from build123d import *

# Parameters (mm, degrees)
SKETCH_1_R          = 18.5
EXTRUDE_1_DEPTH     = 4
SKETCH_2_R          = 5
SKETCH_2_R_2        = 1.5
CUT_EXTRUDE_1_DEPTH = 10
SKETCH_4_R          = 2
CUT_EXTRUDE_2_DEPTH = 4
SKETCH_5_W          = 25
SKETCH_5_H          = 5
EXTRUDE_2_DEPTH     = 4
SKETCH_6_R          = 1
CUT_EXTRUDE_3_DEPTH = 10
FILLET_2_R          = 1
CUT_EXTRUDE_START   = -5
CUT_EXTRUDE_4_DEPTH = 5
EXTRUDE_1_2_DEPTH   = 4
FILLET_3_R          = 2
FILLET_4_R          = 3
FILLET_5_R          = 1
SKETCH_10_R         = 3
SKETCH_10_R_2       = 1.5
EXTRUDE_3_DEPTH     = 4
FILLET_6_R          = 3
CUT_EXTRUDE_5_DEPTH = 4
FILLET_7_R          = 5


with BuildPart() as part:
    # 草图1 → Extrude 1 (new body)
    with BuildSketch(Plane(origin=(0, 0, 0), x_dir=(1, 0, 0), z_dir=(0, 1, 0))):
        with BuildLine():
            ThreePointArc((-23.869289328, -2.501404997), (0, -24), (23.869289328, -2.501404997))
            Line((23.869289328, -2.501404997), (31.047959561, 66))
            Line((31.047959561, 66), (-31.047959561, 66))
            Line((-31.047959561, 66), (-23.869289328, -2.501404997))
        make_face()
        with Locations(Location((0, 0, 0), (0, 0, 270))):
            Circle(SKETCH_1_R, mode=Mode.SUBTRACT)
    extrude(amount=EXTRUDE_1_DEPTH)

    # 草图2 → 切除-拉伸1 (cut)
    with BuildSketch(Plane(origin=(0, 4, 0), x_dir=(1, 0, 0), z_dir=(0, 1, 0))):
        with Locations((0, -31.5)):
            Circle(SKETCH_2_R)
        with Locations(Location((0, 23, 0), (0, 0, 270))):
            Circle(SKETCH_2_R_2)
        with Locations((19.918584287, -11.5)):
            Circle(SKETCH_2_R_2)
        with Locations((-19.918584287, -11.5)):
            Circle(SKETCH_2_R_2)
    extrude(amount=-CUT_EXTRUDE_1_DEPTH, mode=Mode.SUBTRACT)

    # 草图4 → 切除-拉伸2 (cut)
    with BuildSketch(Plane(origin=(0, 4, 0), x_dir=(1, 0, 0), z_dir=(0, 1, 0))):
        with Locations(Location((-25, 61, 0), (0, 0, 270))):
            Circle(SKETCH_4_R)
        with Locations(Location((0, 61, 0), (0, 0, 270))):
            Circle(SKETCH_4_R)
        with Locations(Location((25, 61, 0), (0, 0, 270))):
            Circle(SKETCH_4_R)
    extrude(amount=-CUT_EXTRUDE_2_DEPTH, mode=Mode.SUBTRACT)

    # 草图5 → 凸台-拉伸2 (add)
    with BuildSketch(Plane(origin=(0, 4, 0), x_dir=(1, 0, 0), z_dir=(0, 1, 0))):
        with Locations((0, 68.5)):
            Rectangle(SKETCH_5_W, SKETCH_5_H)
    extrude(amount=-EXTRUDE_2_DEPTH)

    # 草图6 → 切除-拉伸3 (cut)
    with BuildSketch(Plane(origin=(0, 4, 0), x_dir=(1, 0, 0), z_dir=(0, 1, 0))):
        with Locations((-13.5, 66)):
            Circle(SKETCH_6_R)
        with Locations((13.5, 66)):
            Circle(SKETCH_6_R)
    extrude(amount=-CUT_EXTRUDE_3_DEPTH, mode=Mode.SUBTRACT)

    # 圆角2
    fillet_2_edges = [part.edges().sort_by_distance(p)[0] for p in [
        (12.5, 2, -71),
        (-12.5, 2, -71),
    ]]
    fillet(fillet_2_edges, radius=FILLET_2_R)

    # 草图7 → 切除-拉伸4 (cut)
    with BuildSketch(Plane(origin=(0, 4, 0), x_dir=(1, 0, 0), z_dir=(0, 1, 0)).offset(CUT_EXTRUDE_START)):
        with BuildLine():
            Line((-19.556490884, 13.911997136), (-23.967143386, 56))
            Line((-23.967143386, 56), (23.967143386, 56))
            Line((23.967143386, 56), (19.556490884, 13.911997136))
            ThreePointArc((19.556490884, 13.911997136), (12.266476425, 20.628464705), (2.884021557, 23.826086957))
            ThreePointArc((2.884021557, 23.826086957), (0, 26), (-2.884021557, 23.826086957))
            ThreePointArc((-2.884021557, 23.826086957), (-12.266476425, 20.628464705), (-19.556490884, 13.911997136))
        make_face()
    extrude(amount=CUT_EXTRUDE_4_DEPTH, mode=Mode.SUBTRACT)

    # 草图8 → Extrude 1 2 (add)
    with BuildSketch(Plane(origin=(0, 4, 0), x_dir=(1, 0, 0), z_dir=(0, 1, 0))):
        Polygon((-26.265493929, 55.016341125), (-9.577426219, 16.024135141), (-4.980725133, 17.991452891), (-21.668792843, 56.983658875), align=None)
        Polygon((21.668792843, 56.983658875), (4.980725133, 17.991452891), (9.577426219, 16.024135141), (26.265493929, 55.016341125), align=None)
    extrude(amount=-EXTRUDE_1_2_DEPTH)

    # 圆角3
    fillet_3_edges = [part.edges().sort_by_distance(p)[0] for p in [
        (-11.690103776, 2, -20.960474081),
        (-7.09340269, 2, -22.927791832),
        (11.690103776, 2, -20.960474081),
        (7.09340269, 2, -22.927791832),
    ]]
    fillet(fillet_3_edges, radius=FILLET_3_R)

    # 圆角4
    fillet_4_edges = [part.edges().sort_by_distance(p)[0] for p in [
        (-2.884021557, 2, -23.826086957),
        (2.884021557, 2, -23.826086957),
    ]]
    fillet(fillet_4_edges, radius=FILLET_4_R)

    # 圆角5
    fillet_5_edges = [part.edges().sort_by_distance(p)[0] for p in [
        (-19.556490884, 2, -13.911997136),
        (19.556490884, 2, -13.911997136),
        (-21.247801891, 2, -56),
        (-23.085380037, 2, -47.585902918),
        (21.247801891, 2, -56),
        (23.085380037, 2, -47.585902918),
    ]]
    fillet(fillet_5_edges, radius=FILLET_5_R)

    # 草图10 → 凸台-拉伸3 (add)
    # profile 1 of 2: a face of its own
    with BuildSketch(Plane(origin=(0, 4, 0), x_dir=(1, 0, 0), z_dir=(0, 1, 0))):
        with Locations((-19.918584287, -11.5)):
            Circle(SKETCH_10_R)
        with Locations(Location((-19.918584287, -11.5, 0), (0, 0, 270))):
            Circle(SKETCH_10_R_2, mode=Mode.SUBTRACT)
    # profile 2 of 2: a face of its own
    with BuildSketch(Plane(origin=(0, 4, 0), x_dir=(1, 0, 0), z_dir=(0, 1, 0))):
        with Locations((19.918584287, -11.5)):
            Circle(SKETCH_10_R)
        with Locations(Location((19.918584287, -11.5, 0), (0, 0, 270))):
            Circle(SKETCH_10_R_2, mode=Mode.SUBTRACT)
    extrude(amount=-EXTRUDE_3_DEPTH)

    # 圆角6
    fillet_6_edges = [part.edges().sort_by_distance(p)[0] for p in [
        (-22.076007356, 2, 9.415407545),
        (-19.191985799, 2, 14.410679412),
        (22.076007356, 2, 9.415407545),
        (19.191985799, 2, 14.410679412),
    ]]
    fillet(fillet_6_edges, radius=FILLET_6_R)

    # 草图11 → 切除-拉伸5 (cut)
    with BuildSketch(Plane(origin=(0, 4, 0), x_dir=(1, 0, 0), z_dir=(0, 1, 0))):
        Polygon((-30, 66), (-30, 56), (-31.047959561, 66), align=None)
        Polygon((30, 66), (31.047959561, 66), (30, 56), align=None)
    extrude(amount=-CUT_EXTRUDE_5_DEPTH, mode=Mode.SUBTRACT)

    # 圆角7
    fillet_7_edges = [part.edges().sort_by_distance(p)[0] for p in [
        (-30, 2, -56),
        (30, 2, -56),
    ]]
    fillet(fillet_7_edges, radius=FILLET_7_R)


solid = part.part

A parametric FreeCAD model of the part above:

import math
import FreeCAD as App
import Part
import Sketcher
from FreeCAD import Vector
Q = App.Units.Quantity


def edges_at(feature, points):
    """Names of the edges that pass closest to the given points."""
    edges = feature.Shape.Edges
    near = lambda p: min(range(len(edges)), key=lambda i: edges[i].distToShape(Part.Vertex(*p))[0])
    return sorted({f"Edge{near(p) + 1}" for p in points})

doc = App.newDocument("Part")
body = doc.addObject("PartDesign::Body", "Body")

sketch1 = body.newObject("Sketcher::SketchObject", "Sketch")
sketch1.AttachmentSupport = (doc.getObject("XZ_Plane"), [""])
sketch1.MapMode = "FlatFace"
sketch1.addGeometry(Part.ArcOfCircle(Part.Circle(Vector(0, 0, 0), Vector(0, 0, 1), 24), math.radians(6), math.radians(174)), False)
sketch1.addGeometry(Part.LineSegment(Vector(24, 3, 0), Vector(31, -66, 0)), False)
sketch1.addGeometry(Part.LineSegment(Vector(31, -66, 0), Vector(-31, -66, 0)), False)
sketch1.addGeometry(Part.LineSegment(Vector(-31, -66, 0), Vector(-24, 3, 0)), False)
sketch1.addGeometry(Part.Circle(Vector(0, 0, 0), Vector(0, 0, 1), 18), False)
sketch1.addConstraint(Sketcher.Constraint("Tangent", 0, 1, 1, 1))
sketch1.addConstraint(Sketcher.Constraint("Coincident", 1, 2, 2, 1))
sketch1.addConstraint(Sketcher.Constraint("Coincident", 2, 2, 3, 1))
sketch1.addConstraint(Sketcher.Constraint("Tangent", 3, 2, 0, 2))
sketch1.addConstraint(Sketcher.Constraint("Horizontal", 2))
sketch1.addConstraint(Sketcher.Constraint("Coincident", 0, 3, -1, 1))
sketch1.addConstraint(Sketcher.Constraint("Coincident", 4, 3, -1, 1))
sketch1.addConstraint(Sketcher.Constraint("Horizontal", 0, 1, 3, 2))
sketch1.addConstraint(Sketcher.Constraint("Diameter", 4, Q("37 mm")))
sketch1.addConstraint(Sketcher.Constraint("Radius", 0, Q("24 mm")))
sketch1.addConstraint(Sketcher.Constraint("DistanceY", 1, 2, -1, 1, Q("66 mm")))
sketch1.addConstraint(Sketcher.Constraint("DistanceX", 2, 2, 2, 1, Q("62.095919 mm")))
pad1 = body.newObject("PartDesign::Pad", "Pad")
pad1.Profile = sketch1
pad1.Length = 4
pad1.Reversed = True

sketch2 = body.newObject("Sketcher::SketchObject", "Sketch001")
sketch2.AttachmentSupport = (doc.getObject("XZ_Plane"), [""])
sketch2.MapMode = "FlatFace"
sketch2.AttachmentOffset = App.Placement(Vector(0, 0, -4), App.Rotation())
sketch2.addGeometry(Part.Circle(Vector(0, 31.5, 0), Vector(0, 0, 1), 5), False)
sketch2.addGeometry(Part.Circle(Vector(0, -23, 0), Vector(0, 0, 1), 1.5), False)
sketch2.addGeometry(Part.Circle(Vector(19.9, 11.5, 0), Vector(0, 0, 1), 1.5), False)
sketch2.addGeometry(Part.Circle(Vector(-19.9, 11.5, 0), Vector(0, 0, 1), 1.5), False)
sketch2.addConstraint(Sketcher.Constraint("Equal", 1, 2))
sketch2.addConstraint(Sketcher.Constraint("Equal", 2, 3))
sketch2.addConstraint(Sketcher.Constraint("Symmetric", 2, 3, 3, 3, -2))
sketch2.addConstraint(Sketcher.Constraint("PointOnObject", 0, 3, -2))
sketch2.addConstraint(Sketcher.Constraint("PointOnObject", 1, 3, -2))
sketch2.addConstraint(Sketcher.Constraint("Diameter", 0, Q("10 mm")))
sketch2.addConstraint(Sketcher.Constraint("Diameter", 1, Q("3 mm")))
sketch2.addConstraint(Sketcher.Constraint("DistanceY", 1, 3, -1, 1, Q("23 mm")))
sketch2.addConstraint(Sketcher.Constraint("DistanceY", 2, 3, 0, 3, Q("20 mm")))
sketch2.addConstraint(Sketcher.Constraint("DistanceY", -1, 1, 0, 3, Q("31.5 mm")))
sketch2.addConstraint(Sketcher.Constraint("DistanceX", 3, 3, 2, 3, Q("39.837169 mm")))
pocket1 = body.newObject("PartDesign::Pocket", "Pocket")
pocket1.Profile = sketch2
pocket1.Length = 10
pocket1.Reversed = True

sketch3 = body.newObject("Sketcher::SketchObject", "Sketch002")
sketch3.AttachmentSupport = (doc.getObject("XZ_Plane"), [""])
sketch3.MapMode = "FlatFace"
sketch3.AttachmentOffset = App.Placement(Vector(0, 0, -4), App.Rotation())
sketch3.addGeometry(Part.Circle(Vector(-25, -61, 0), Vector(0, 0, 1), 2), False)
sketch3.addGeometry(Part.Circle(Vector(0, -61, 0), Vector(0, 0, 1), 2), False)
sketch3.addGeometry(Part.Circle(Vector(25, -61, 0), Vector(0, 0, 1), 2), False)
sketch3.addConstraint(Sketcher.Constraint("Equal", 0, 1))
sketch3.addConstraint(Sketcher.Constraint("Equal", 1, 2))
sketch3.addConstraint(Sketcher.Constraint("Symmetric", 0, 3, 2, 3, -2))
sketch3.addConstraint(Sketcher.Constraint("PointOnObject", 1, 3, -2))
sketch3.addConstraint(Sketcher.Constraint("Horizontal", 0, 3, 1, 3))
sketch3.addConstraint(Sketcher.Constraint("Diameter", 0, Q("4 mm")))
sketch3.addConstraint(Sketcher.Constraint("DistanceX", 0, 3, -1, 1, Q("25 mm")))
sketch3.addConstraint(Sketcher.Constraint("DistanceY", 0, 3, -1, 1, Q("61 mm")))
pocket2 = body.newObject("PartDesign::Pocket", "Pocket001")
pocket2.Profile = sketch3
pocket2.Length = 4
pocket2.Reversed = True

sketch4 = body.newObject("Sketcher::SketchObject", "Sketch003")
sketch4.AttachmentSupport = (doc.getObject("XZ_Plane"), [""])
sketch4.MapMode = "FlatFace"
sketch4.AttachmentOffset = App.Placement(Vector(0, 0, -4), App.Rotation())
sketch4.addGeometry(Part.LineSegment(Vector(-12, -71, 0), Vector(-12, -66, 0)), False)
sketch4.addGeometry(Part.LineSegment(Vector(-12, -66, 0), Vector(12, -66, 0)), False)
sketch4.addGeometry(Part.LineSegment(Vector(12, -66, 0), Vector(12, -71, 0)), False)
sketch4.addGeometry(Part.LineSegment(Vector(12, -71, 0), Vector(-12, -71, 0)), False)
sketch4.addConstraint(Sketcher.Constraint("Coincident", 0, 2, 1, 1))
sketch4.addConstraint(Sketcher.Constraint("Coincident", 1, 2, 2, 1))
sketch4.addConstraint(Sketcher.Constraint("Coincident", 2, 2, 3, 1))
sketch4.addConstraint(Sketcher.Constraint("Coincident", 3, 2, 0, 1))
sketch4.addConstraint(Sketcher.Constraint("Vertical", 0))
sketch4.addConstraint(Sketcher.Constraint("Horizontal", 1))
sketch4.addConstraint(Sketcher.Constraint("Vertical", 2))
sketch4.addConstraint(Sketcher.Constraint("Horizontal", 3))
sketch4.addConstraint(Sketcher.Constraint("DistanceX", 1, 1, 1, 2, Q("25 mm")))
sketch4.addConstraint(Sketcher.Constraint("DistanceY", 0, 1, 0, 2, Q("5 mm")))
sketch4.addConstraint(Sketcher.Constraint("DistanceY", 0, 2, -1, 1, Q("66 mm")))
sketch4.addConstraint(Sketcher.Constraint("DistanceX", 0, 2, -1, 1, Q("12.5 mm")))
pad2 = body.newObject("PartDesign::Pad", "Pad001")
pad2.Profile = sketch4
pad2.Length = 4

sketch5 = body.newObject("Sketcher::SketchObject", "Sketch004")
sketch5.AttachmentSupport = (doc.getObject("XZ_Plane"), [""])
sketch5.MapMode = "FlatFace"
sketch5.AttachmentOffset = App.Placement(Vector(0, 0, -4), App.Rotation())
sketch5.addGeometry(Part.Circle(Vector(-13.5, -66, 0), Vector(0, 0, 1), 1), False)
sketch5.addGeometry(Part.Circle(Vector(13.5, -66, 0), Vector(0, 0, 1), 1), False)
sketch5.addConstraint(Sketcher.Constraint("Equal", 0, 1))
sketch5.addConstraint(Sketcher.Constraint("Symmetric", 0, 3, 1, 3, -2))
sketch5.addConstraint(Sketcher.Constraint("Diameter", 0, Q("2 mm")))
sketch5.addConstraint(Sketcher.Constraint("DistanceY", 0, 3, -1, 1, Q("66 mm")))
sketch5.addConstraint(Sketcher.Constraint("DistanceX", 0, 3, 1, 3, Q("27 mm")))
pocket3 = body.newObject("PartDesign::Pocket", "Pocket002")
pocket3.Profile = sketch5
pocket3.Length = 10
pocket3.Reversed = True
doc.recompute()

fillet = body.newObject("PartDesign::Fillet", "Fillet")
fillet.Base = (pocket3, edges_at(pocket3, [(12.5, 2, -71), (-12.5, 2, -71)]))
fillet.Radius = 1

sketch6 = body.newObject("Sketcher::SketchObject", "Sketch005")
sketch6.AttachmentSupport = (doc.getObject("XZ_Plane"), [""])
sketch6.MapMode = "FlatFace"
sketch6.AttachmentOffset = App.Placement(Vector(0, 0, 1), App.Rotation())
sketch6.addGeometry(Part.LineSegment(Vector(-24, -56, 0), Vector(-19.6, -13.9, 0)), False)
sketch6.addGeometry(Part.ArcOfCircle(Part.Circle(Vector(0, 0, 0), Vector(0, 0, 1), 24), math.radians(-145), math.radians(-97)), False)
sketch6.addGeometry(Part.ArcOfCircle(Part.Circle(Vector(0, -23, 0), Vector(0, 0, 1), 3), math.radians(-164), math.radians(-16)), False)
sketch6.addGeometry(Part.ArcOfCircle(Part.Circle(Vector(0, 0, 0), Vector(0, 0, 1), 24), math.radians(-83), math.radians(-35)), False)
sketch6.addGeometry(Part.LineSegment(Vector(19.6, -13.9, 0), Vector(24, -56, 0)), False)
sketch6.addGeometry(Part.LineSegment(Vector(24, -56, 0), Vector(-24, -56, 0)), False)
sketch6.addConstraint(Sketcher.Constraint("Coincident", 0, 2, 1, 1))
sketch6.addConstraint(Sketcher.Constraint("Coincident", 1, 2, 2, 1))
sketch6.addConstraint(Sketcher.Constraint("Coincident", 2, 2, 3, 1))
sketch6.addConstraint(Sketcher.Constraint("Coincident", 3, 2, 4, 1))
sketch6.addConstraint(Sketcher.Constraint("Coincident", 4, 2, 5, 1))
sketch6.addConstraint(Sketcher.Constraint("Coincident", 5, 2, 0, 1))
sketch6.addConstraint(Sketcher.Constraint("Horizontal", 5))
sketch6.addConstraint(Sketcher.Constraint("Coincident", 1, 3, -1, 1))
sketch6.addConstraint(Sketcher.Constraint("Coincident", 3, 3, -1, 1))
sketch6.addConstraint(Sketcher.Constraint("Equal", 1, 3))
sketch6.addConstraint(Sketcher.Constraint("PointOnObject", 2, 3, -2))
sketch6.addConstraint(Sketcher.Constraint("Horizontal", 0, 2, 3, 2))
sketch6.addConstraint(Sketcher.Constraint("Equal", 0, 4))
sketch6.addConstraint(Sketcher.Constraint("Radius", 1, Q("24 mm")))
sketch6.addConstraint(Sketcher.Constraint("Radius", 2, Q("3 mm")))
sketch6.addConstraint(Sketcher.Constraint("DistanceY", 2, 3, -1, 1, Q("23 mm")))
sketch6.addConstraint(Sketcher.Constraint("DistanceY", 4, 2, -1, 1, Q("56 mm")))
sketch6.addConstraint(Sketcher.Constraint("Distance", 0, Q("42.318481 mm")))
sketch6.addConstraint(Sketcher.Constraint("DistanceX", 5, 2, 5, 1, Q("47.934287 mm")))
pocket4 = body.newObject("PartDesign::Pocket", "Pocket003")
pocket4.Profile = sketch6
pocket4.Length = 5

sketch7 = body.newObject("Sketcher::SketchObject", "Sketch006")
sketch7.AttachmentSupport = (doc.getObject("XZ_Plane"), [""])
sketch7.MapMode = "FlatFace"
sketch7.AttachmentOffset = App.Placement(Vector(0, 0, -4), App.Rotation())
sketch7.addGeometry(Part.LineSegment(Vector(-26, -55, 0), Vector(-10, -16, 0)), False)
sketch7.addGeometry(Part.LineSegment(Vector(-10, -16, 0), Vector(-5, -18, 0)), False)
sketch7.addGeometry(Part.LineSegment(Vector(-5, -18, 0), Vector(-22, -57, 0)), False)
sketch7.addGeometry(Part.LineSegment(Vector(-22, -57, 0), Vector(-26, -55, 0)), False)
sketch7.addGeometry(Part.LineSegment(Vector(22, -57, 0), Vector(5, -18, 0)), False)
sketch7.addGeometry(Part.LineSegment(Vector(5, -18, 0), Vector(10, -16, 0)), False)
sketch7.addGeometry(Part.LineSegment(Vector(10, -16, 0), Vector(26, -55, 0)), False)
sketch7.addGeometry(Part.LineSegment(Vector(26, -55, 0), Vector(22, -57, 0)), False)
sketch7.addConstraint(Sketcher.Constraint("Coincident", 0, 2, 1, 1))
sketch7.addConstraint(Sketcher.Constraint("Coincident", 1, 2, 2, 1))
sketch7.addConstraint(Sketcher.Constraint("Coincident", 2, 2, 3, 1))
sketch7.addConstraint(Sketcher.Constraint("Coincident", 3, 2, 0, 1))
sketch7.addConstraint(Sketcher.Constraint("Coincident", 4, 2, 5, 1))
sketch7.addConstraint(Sketcher.Constraint("Coincident", 5, 2, 6, 1))
sketch7.addConstraint(Sketcher.Constraint("Coincident", 6, 2, 7, 1))
sketch7.addConstraint(Sketcher.Constraint("Coincident", 7, 2, 4, 1))
sketch7.addConstraint(Sketcher.Constraint("Symmetric", 1, 2, 4, 2, -2))
sketch7.addConstraint(Sketcher.Constraint("Symmetric", 0, 2, 5, 2, -2))
sketch7.addConstraint(Sketcher.Constraint("Symmetric", 3, 2, 6, 2, -2))
sketch7.addConstraint(Sketcher.Constraint("Symmetric", 2, 2, 7, 2, -2))
sketch7.addConstraint(Sketcher.Constraint("Perpendicular", 0, 1))
sketch7.addConstraint(Sketcher.Constraint("Perpendicular", 1, 2))
sketch7.addConstraint(Sketcher.Constraint("Perpendicular", 2, 3))
sketch7.addConstraint(Sketcher.Constraint("Distance", 1, Q("5 mm")))
sketch7.addConstraint(Sketcher.Constraint("DistanceX", 0, 2, 1, 2, Q("4.596701 mm")))
sketch7.addConstraint(Sketcher.Constraint("Distance", 0, Q("42.413249 mm")))
sketch7.addConstraint(Sketcher.Constraint("DistanceY", 2, 2, -1, 1, Q("56.983659 mm")))
sketch7.addConstraint(Sketcher.Constraint("DistanceX", 1, 2, 4, 2, Q("9.96145 mm")))
pad3 = body.newObject("PartDesign::Pad", "Pad002")
pad3.Profile = sketch7
pad3.Length = 4
doc.recompute()

fillet2 = body.newObject("PartDesign::Fillet", "Fillet001")
fillet2.Base = (pad3, edges_at(pad3, [
    (-11.69, 2, -20.96),
    (-7.093, 2, -22.928),
    (11.69, 2, -20.96),
    (7.093, 2, -22.928),
]))
fillet2.Radius = 2
doc.recompute()

fillet3 = body.newObject("PartDesign::Fillet", "Fillet002")
fillet3.Base = (fillet2, edges_at(fillet2, [(-2.884, 2, -23.826), (2.884, 2, -23.826)]))
fillet3.Radius = 3
doc.recompute()

fillet4 = body.newObject("PartDesign::Fillet", "Fillet003")
fillet4.Base = (fillet3, edges_at(fillet3, [
    (-19.556, 2, -13.912),
    (19.556, 2, -13.912),
    (-21.248, 2, -56),
    (-23.085, 2, -47.586),
    (21.248, 2, -56),
    (23.085, 2, -47.586),
]))
fillet4.Radius = 1

sketch8 = body.newObject("Sketcher::SketchObject", "Sketch007")
sketch8.AttachmentSupport = (doc.getObject("XZ_Plane"), [""])
sketch8.MapMode = "FlatFace"
sketch8.AttachmentOffset = App.Placement(Vector(0, 0, -4), App.Rotation())
sketch8.addGeometry(Part.Circle(Vector(-19.9, 11.5, 0), Vector(0, 0, 1), 3), False)
sketch8.addGeometry(Part.Circle(Vector(-19.9, 11.5, 0), Vector(0, 0, 1), 1.5), False)
sketch8.addGeometry(Part.Circle(Vector(19.9, 11.5, 0), Vector(0, 0, 1), 3), False)
sketch8.addGeometry(Part.Circle(Vector(19.9, 11.5, 0), Vector(0, 0, 1), 1.5), False)
sketch8.addConstraint(Sketcher.Constraint("Coincident", 1, 3, 0, 3))
sketch8.addConstraint(Sketcher.Constraint("Coincident", 3, 3, 2, 3))
sketch8.addConstraint(Sketcher.Constraint("Equal", 0, 2))
sketch8.addConstraint(Sketcher.Constraint("Equal", 1, 3))
sketch8.addConstraint(Sketcher.Constraint("Symmetric", 0, 3, 2, 3, -2))
sketch8.addConstraint(Sketcher.Constraint("Diameter", 0, Q("6 mm")))
sketch8.addConstraint(Sketcher.Constraint("Diameter", 1, Q("3 mm")))
sketch8.addConstraint(Sketcher.Constraint("DistanceY", -1, 1, 0, 3, Q("11.5 mm")))
sketch8.addConstraint(Sketcher.Constraint("DistanceX", 0, 3, 2, 3, Q("39.837169 mm")))
pad4 = body.newObject("PartDesign::Pad", "Pad003")
pad4.Profile = sketch8
pad4.Length = 4
doc.recompute()

fillet5 = body.newObject("PartDesign::Fillet", "Fillet004")
fillet5.Base = (pad4, edges_at(pad4, [
    (-22.076, 2, 9.415),
    (-19.192, 2, 14.411),
    (22.076, 2, 9.415),
    (19.192, 2, 14.411),
]))
fillet5.Radius = 3

sketch9 = body.newObject("Sketcher::SketchObject", "Sketch008")
sketch9.AttachmentSupport = (doc.getObject("XZ_Plane"), [""])
sketch9.MapMode = "FlatFace"
sketch9.AttachmentOffset = App.Placement(Vector(0, 0, -4), App.Rotation())
sketch9.addGeometry(Part.LineSegment(Vector(-30, -56, 0), Vector(-30, -66, 0)), False)
sketch9.addGeometry(Part.LineSegment(Vector(-30, -66, 0), Vector(-31, -66, 0)), False)
sketch9.addGeometry(Part.LineSegment(Vector(-31, -66, 0), Vector(-30, -56, 0)), False)
sketch9.addGeometry(Part.LineSegment(Vector(31, -66, 0), Vector(30, -66, 0)), False)
sketch9.addGeometry(Part.LineSegment(Vector(30, -66, 0), Vector(30, -56, 0)), False)
sketch9.addGeometry(Part.LineSegment(Vector(30, -56, 0), Vector(31, -66, 0)), False)
sketch9.addConstraint(Sketcher.Constraint("Coincident", 0, 2, 1, 1))
sketch9.addConstraint(Sketcher.Constraint("Coincident", 1, 2, 2, 1))
sketch9.addConstraint(Sketcher.Constraint("Coincident", 2, 2, 0, 1))
sketch9.addConstraint(Sketcher.Constraint("Coincident", 3, 2, 4, 1))
sketch9.addConstraint(Sketcher.Constraint("Coincident", 4, 2, 5, 1))
sketch9.addConstraint(Sketcher.Constraint("Coincident", 5, 2, 3, 1))
sketch9.addConstraint(Sketcher.Constraint("Vertical", 0))
sketch9.addConstraint(Sketcher.Constraint("Horizontal", 1))
sketch9.addConstraint(Sketcher.Constraint("Horizontal", 3))
sketch9.addConstraint(Sketcher.Constraint("Vertical", 4))
sketch9.addConstraint(Sketcher.Constraint("Symmetric", 0, 2, 3, 2, -2))
sketch9.addConstraint(Sketcher.Constraint("Horizontal", 2, 2, 4, 2))
sketch9.addConstraint(Sketcher.Constraint("Equal", 1, 3))
sketch9.addConstraint(Sketcher.Constraint("DistanceY", 0, 2, 0, 1, Q("10 mm")))
sketch9.addConstraint(Sketcher.Constraint("DistanceX", 0, 2, -1, 1, Q("30 mm")))
sketch9.addConstraint(Sketcher.Constraint("DistanceY", 0, 2, -1, 1, Q("66 mm")))
sketch9.addConstraint(Sketcher.Constraint("DistanceX", 1, 2, 1, 1, Q("1.04796 mm")))
pocket5 = body.newObject("PartDesign::Pocket", "Pocket004")
pocket5.Profile = sketch9
pocket5.Length = 4
pocket5.Reversed = True
doc.recompute()

fillet6 = body.newObject("PartDesign::Fillet", "Fillet005")
fillet6.Base = (pocket5, edges_at(pocket5, [(-30, 2, -56), (30, 2, -56)]))
fillet6.Radius = 5

doc.recompute()
